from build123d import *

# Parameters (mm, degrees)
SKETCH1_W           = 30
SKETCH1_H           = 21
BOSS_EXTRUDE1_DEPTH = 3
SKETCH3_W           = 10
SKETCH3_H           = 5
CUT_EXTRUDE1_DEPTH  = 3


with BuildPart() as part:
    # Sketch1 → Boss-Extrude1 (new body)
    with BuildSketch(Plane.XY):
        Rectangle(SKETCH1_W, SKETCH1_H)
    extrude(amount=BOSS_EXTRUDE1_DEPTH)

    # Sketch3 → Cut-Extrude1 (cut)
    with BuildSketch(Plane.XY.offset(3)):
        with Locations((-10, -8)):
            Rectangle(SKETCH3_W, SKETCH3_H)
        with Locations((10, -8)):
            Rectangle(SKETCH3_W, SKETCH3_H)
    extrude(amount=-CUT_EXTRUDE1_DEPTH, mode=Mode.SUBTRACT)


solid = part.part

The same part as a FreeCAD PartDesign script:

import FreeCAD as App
import Part
import Sketcher

V = App.Vector
Q = App.Units.Quantity


def add_polygon(sketch, points):
    """Adds a closed chain of lines whose ends are joined by coincident constraints."""
    first, n = sketch.GeometryCount, len(points)
    for a, b in zip(points, points[1:] + points[:1]):
        sketch.addGeometry(Part.LineSegment(App.Vector(*a, 0), App.Vector(*b, 0)), False)
    for i in range(n):
        sketch.addConstraint(Sketcher.Constraint("Coincident", first + i, 2, first + (i + 1) % n, 1))

doc = App.newDocument("Part")
body = doc.addObject("PartDesign::Body", "Body")

# Sketch on XY plane
sketch1 = body.newObject("Sketcher::SketchObject", "Sketch")
sketch1.AttachmentSupport = (doc.getObject("XY_Plane"), [""])
sketch1.MapMode = "FlatFace"
add_polygon(sketch1, [(-15, 10), (-15, -10), (15, -10), (15, 10)])  # lines 0-3
sketch1.addConstraint([
    Sketcher.Constraint("Vertical", 0),
    Sketcher.Constraint("Horizontal", 1),
    Sketcher.Constraint("Vertical", 2),
    Sketcher.Constraint("Horizontal", 3),
    Sketcher.Constraint("Symmetric", 0, 2, 2, 2, -1, 1),
    Sketcher.Constraint("DistanceX", 1, 1, 1, 2, Q("30 mm")),
    Sketcher.Constraint("DistanceY", 0, 2, 0, 1, Q("21 mm")),
])
pad1 = body.newObject("PartDesign::Pad", "Pad")
pad1.Profile = sketch1
pad1.Length = 3

# Sketch on XY plane
sketch2 = body.newObject("Sketcher::SketchObject", "Sketch001")
sketch2.AttachmentSupport = (doc.getObject("XY_Plane"), [""])
sketch2.MapMode = "FlatFace"
sketch2.AttachmentOffset = App.Placement(V(0, 0, 3), App.Rotation())
add_polygon(sketch2, [(-15, -6), (-15, -10), (-5, -10), (-5, -6)])  # lines 0-3
add_polygon(sketch2, [(5, -6), (5, -10), (15, -10), (15, -6)])  # lines 4-7
sketch2.addConstraint([
    Sketcher.Constraint("Vertical", 0),
    Sketcher.Constraint("Horizontal", 1),
    Sketcher.Constraint("Vertical", 2),
    Sketcher.Constraint("Horizontal", 3),
    Sketcher.Constraint("Vertical", 4),
    Sketcher.Constraint("Horizontal", 5),
    Sketcher.Constraint("Vertical", 6),
    Sketcher.Constraint("Horizontal", 7),
    Sketcher.Constraint("Symmetric", 1, 2, 4, 2, -2),
    Sketcher.Constraint("Symmetric", 3, 2, 6, 2, -2),
    Sketcher.Constraint("DistanceX", 1, 1, 1, 2, Q("10 mm")),
    Sketcher.Constraint("DistanceY", 0, 2, 0, 1, Q("5 mm")),
    Sketcher.Constraint("DistanceX", 0, 2, -1, 1, Q("15 mm")),
    Sketcher.Constraint("DistanceY", 0, 2, -1, 1, Q("10.5 mm")),
])
pocket1 = body.newObject("PartDesign::Pocket", "Pocket")
pocket1.Profile = sketch2
pocket1.Length = 3

doc.recompute()
